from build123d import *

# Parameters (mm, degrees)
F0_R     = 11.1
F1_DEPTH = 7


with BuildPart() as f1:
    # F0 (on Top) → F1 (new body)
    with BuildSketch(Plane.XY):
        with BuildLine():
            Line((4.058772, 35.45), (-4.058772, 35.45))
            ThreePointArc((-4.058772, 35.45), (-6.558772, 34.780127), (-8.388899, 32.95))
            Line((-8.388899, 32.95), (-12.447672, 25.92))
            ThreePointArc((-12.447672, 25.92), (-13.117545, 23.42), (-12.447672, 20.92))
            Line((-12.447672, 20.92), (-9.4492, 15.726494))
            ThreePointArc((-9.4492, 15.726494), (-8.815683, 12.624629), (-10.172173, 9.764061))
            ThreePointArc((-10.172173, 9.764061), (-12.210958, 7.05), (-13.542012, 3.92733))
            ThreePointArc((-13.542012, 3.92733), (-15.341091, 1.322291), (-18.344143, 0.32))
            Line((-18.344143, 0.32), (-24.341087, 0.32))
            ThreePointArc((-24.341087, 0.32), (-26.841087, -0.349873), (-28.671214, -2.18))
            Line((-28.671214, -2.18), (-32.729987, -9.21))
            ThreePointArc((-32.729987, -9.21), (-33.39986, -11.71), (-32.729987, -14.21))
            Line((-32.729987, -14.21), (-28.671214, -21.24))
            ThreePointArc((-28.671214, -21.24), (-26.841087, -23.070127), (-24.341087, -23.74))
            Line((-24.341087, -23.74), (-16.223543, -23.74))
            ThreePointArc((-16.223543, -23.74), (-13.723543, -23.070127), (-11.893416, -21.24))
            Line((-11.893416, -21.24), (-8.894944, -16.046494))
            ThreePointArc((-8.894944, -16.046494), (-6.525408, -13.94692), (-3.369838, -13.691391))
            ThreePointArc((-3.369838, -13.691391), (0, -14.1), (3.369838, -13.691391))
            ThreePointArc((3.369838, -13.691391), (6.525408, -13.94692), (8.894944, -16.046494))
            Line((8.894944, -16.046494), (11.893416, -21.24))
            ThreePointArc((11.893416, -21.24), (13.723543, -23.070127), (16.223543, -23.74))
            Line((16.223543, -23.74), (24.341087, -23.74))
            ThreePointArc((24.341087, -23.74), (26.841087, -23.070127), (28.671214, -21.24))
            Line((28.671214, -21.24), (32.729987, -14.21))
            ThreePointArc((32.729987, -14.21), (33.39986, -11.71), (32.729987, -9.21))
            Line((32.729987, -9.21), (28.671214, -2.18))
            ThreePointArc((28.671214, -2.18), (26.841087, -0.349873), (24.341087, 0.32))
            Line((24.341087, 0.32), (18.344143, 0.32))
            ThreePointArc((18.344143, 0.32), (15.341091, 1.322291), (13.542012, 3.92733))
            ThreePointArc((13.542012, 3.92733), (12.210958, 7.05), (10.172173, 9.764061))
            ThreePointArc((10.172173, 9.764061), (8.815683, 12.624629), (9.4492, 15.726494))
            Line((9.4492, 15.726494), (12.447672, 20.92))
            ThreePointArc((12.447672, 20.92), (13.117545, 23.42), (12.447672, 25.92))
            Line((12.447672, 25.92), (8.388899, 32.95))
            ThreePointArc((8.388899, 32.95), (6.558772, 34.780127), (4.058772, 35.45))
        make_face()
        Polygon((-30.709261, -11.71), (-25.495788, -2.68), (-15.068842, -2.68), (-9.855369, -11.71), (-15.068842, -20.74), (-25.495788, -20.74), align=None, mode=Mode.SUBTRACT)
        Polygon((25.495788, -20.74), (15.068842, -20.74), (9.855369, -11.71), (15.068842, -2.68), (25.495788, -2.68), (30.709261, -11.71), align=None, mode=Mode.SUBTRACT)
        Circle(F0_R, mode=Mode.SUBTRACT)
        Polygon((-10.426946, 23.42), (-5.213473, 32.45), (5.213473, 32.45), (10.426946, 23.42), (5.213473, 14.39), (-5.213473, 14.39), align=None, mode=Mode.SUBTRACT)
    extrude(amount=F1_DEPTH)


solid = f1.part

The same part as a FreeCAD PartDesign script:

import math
import FreeCAD as App
import Part
import Sketcher
from FreeCAD import Vector
Q = App.Units.Quantity


def add_polygon(sketch, points):
    """Adds a closed chain of lines whose ends are joined by coincident constraints."""
    first, n = sketch.GeometryCount, len(points)
    for a, b in zip(points, points[1:] + points[:1]):
        sketch.addGeometry(Part.LineSegment(App.Vector(*a, 0), App.Vector(*b, 0)), False)
    for i in range(n):
        sketch.addConstraint(Sketcher.Constraint("Coincident", first + i, 2, first + (i + 1) % n, 1))

doc = App.newDocument("Part")
body = doc.addObject("PartDesign::Body", "Body")

# Sketch on XY plane
sketch1 = body.newObject("Sketcher::SketchObject", "Sketch")
sketch1.AttachmentSupport = (doc.getObject("XY_Plane"), [""])
sketch1.MapMode = "FlatFace"
sketch1.addGeometry(Part.LineSegment(Vector(4.058772, 35.45, 0), Vector(-4.058772, 35.45, 0)), False)  # 0
sketch1.addGeometry(Part.ArcOfCircle(Part.Circle(Vector(-4.058772, 30.45, 0), Vector(0, 0, 1), 5), math.radians(90.000001), math.radians(150)), False)  # 1
sketch1.addGeometry(Part.LineSegment(Vector(-8.388899, 32.95, 0), Vector(-12.447672, 25.92, 0)), False)  # 2
sketch1.addGeometry(Part.ArcOfCircle(Part.Circle(Vector(-8.117545, 23.42, 0), Vector(0, 0, 1), 5), math.radians(149.999999), math.radians(210.000001)), False)  # 3
sketch1.addGeometry(Part.LineSegment(Vector(-12.447672, 20.92, 0), Vector(-9.4492, 15.726494, 0)), False)  # 4
sketch1.addGeometry(Part.ArcOfCircle(Part.Circle(Vector(-13.779326, 13.226494, 0), Vector(0, 0, 1), 4.999999), math.radians(-43.827272), math.radians(30.000009)), False)  # 5
sketch1.addGeometry(Part.ArcOfCircle(Part.Circle(Vector(0.000005, -0.000004, 0), Vector(0, 0, 1), 14.100006), math.radians(136.172731), math.radians(163.827258)), False)  # 6
sketch1.addGeometry(Part.ArcOfCircle(Part.Circle(Vector(-18.344143, 5.319999, 0), Vector(0, 0, 1), 4.999999), math.radians(-90.000003), math.radians(-16.172716)), False)  # 7
sketch1.addGeometry(Part.LineSegment(Vector(-18.344143, 0.32, 0), Vector(-24.341087, 0.32, 0)), False)  # 8
sketch1.addGeometry(Part.ArcOfCircle(Part.Circle(Vector(-24.341087, -4.68, 0), Vector(0, 0, 1), 5), math.radians(90.000001), math.radians(150)), False)  # 9
sketch1.addGeometry(Part.LineSegment(Vector(-28.671214, -2.18, 0), Vector(-32.729987, -9.21, 0)), False)  # 10
sketch1.addGeometry(Part.ArcOfCircle(Part.Circle(Vector(-28.39986, -11.71, 0), Vector(0, 0, 1), 5), math.radians(149.999999), math.radians(210.000001)), False)  # 11
sketch1.addGeometry(Part.LineSegment(Vector(-32.729987, -14.21, 0), Vector(-28.671214, -21.24, 0)), False)  # 12
sketch1.addGeometry(Part.ArcOfCircle(Part.Circle(Vector(-24.341087, -18.74, 0), Vector(0, 0, 1), 5), math.radians(-150), math.radians(-90.000001)), False)  # 13
sketch1.addGeometry(Part.LineSegment(Vector(-24.341087, -23.74, 0), Vector(-16.223543, -23.74, 0)), False)  # 14
sketch1.addGeometry(Part.ArcOfCircle(Part.Circle(Vector(-16.223543, -18.74, 0), Vector(0, 0, 1), 5), math.radians(-89.999999), math.radians(-30)), False)  # 15
sketch1.addGeometry(Part.LineSegment(Vector(-11.893416, -21.24, 0), Vector(-8.894944, -16.046494, 0)), False)  # 16
sketch1.addGeometry(Part.ArcOfCircle(Part.Circle(Vector(-4.564817, -18.546495, 0), Vector(0, 0, 1), 5.000001), math.radians(76.172727), math.radians(149.999994)), False)  # 17
sketch1.addGeometry(Part.ArcOfCircle(Part.Circle(Vector(0, -0.000005, 0), Vector(0, 0, 1), 14.099995), math.radians(-103.827273), math.radians(-76.172727)), False)  # 18
sketch1.addGeometry(Part.ArcOfCircle(Part.Circle(Vector(4.564817, -18.546495, 0), Vector(0, 0, 1), 5.000001), math.radians(30.000006), math.radians(103.827273)), False)  # 19
sketch1.addGeometry(Part.LineSegment(Vector(8.894944, -16.046494, 0), Vector(11.893416, -21.24, 0)), False)  # 20
sketch1.addGeometry(Part.ArcOfCircle(Part.Circle(Vector(16.223543, -18.74, 0), Vector(0, 0, 1), 5), math.radians(-150), math.radians(-90.000001)), False)  # 21
sketch1.addGeometry(Part.LineSegment(Vector(16.223543, -23.74, 0), Vector(24.341087, -23.74, 0)), False)  # 22
sketch1.addGeometry(Part.ArcOfCircle(Part.Circle(Vector(24.341087, -18.74, 0), Vector(0, 0, 1), 5), math.radians(-89.999999), math.radians(-30)), False)  # 23
sketch1.addGeometry(Part.LineSegment(Vector(28.671214, -21.24, 0), Vector(32.729987, -14.21, 0)), False)  # 24
sketch1.addGeometry(Part.ArcOfCircle(Part.Circle(Vector(28.39986, -11.71, 0), Vector(0, 0, 1), 5), math.radians(-30.000001), math.radians(30.000001)), False)  # 25
sketch1.addGeometry(Part.LineSegment(Vector(32.729987, -9.21, 0), Vector(28.671214, -2.18, 0)), False)  # 26
sketch1.addGeometry(Part.ArcOfCircle(Part.Circle(Vector(24.341087, -4.68, 0), Vector(0, 0, 1), 5), math.radians(30), math.radians(89.999999)), False)  # 27
sketch1.addGeometry(Part.LineSegment(Vector(24.341087, 0.32, 0), Vector(18.344143, 0.32, 0)), False)  # 28
sketch1.addGeometry(Part.ArcOfCircle(Part.Circle(Vector(18.344143, 5.319999, 0), Vector(0, 0, 1), 4.999999), math.radians(-163.827284), math.radians(-89.999997)), False)  # 29
sketch1.addGeometry(Part.ArcOfCircle(Part.Circle(Vector(-0.000005, -0.000004, 0), Vector(0, 0, 1), 14.100006), math.radians(16.172742), math.radians(43.827269)), False)  # 30
sketch1.addGeometry(Part.ArcOfCircle(Part.Circle(Vector(13.779326, 13.226494, 0), Vector(0, 0, 1), 4.999999), math.radians(149.999991), math.radians(223.827272)), False)  # 31
sketch1.addGeometry(Part.LineSegment(Vector(9.4492, 15.726494, 0), Vector(12.447672, 20.92, 0)), False)  # 32
sketch1.addGeometry(Part.ArcOfCircle(Part.Circle(Vector(8.117545, 23.42, 0), Vector(0, 0, 1), 5), math.radians(-30.000001), math.radians(30.000001)), False)  # 33
sketch1.addGeometry(Part.LineSegment(Vector(12.447672, 25.92, 0), Vector(8.388899, 32.95, 0)), False)  # 34
sketch1.addGeometry(Part.ArcOfCircle(Part.Circle(Vector(4.058772, 30.45, 0), Vector(0, 0, 1), 5), math.radians(30), math.radians(89.999999)), False)  # 35
add_polygon(sketch1, [(-25.495788, -20.74), (-30.709261, -11.71), (-25.495788, -2.68), (-15.068842, -2.68), (-9.855369, -11.71), (-15.068842, -20.74)])  # lines 36-41
add_polygon(sketch1, [(30.709261, -11.71), (25.495788, -20.74), (15.068842, -20.74), (9.855369, -11.71), (15.068842, -2.68), (25.495788, -2.68)])  # lines 42-47
sketch1.addGeometry(Part.Circle(Vector(0, 0, 0), Vector(0, 0, 1), 11.1), False)  # 48
add_polygon(sketch1, [(-5.213473, 14.39), (-10.426946, 23.42), (-5.213473, 32.45), (5.213473, 32.45), (10.426946, 23.42), (5.213473, 14.39)])  # lines 49-54
sketch1.addConstraint([
    Sketcher.Constraint("Coincident", 0, 2, 1, 1),
    Sketcher.Constraint("Coincident", 1, 2, 2, 1),
    Sketcher.Constraint("Coincident", 2, 2, 3, 1),
    Sketcher.Constraint("Coincident", 3, 2, 4, 1),
    Sketcher.Constraint("Coincident", 4, 2, 5, 2),
    Sketcher.Constraint("Coincident", 5, 1, 6, 1),
    Sketcher.Constraint("Coincident", 6, 2, 7, 2),
    Sketcher.Constraint("Coincident", 7, 1, 8, 1),
    Sketcher.Constraint("Coincident", 8, 2, 9, 1),
    Sketcher.Constraint("Coincident", 9, 2, 10, 1),
    Sketcher.Constraint("Coincident", 10, 2, 11, 1),
    Sketcher.Constraint("Coincident", 11, 2, 12, 1),
    Sketcher.Constraint("Coincident", 12, 2, 13, 1),
    Sketcher.Constraint("Coincident", 13, 2, 14, 1),
    Sketcher.Constraint("Coincident", 14, 2, 15, 1),
    Sketcher.Constraint("Coincident", 15, 2, 16, 1),
    Sketcher.Constraint("Coincident", 16, 2, 17, 2),
    Sketcher.Constraint("Coincident", 17, 1, 18, 1),
    Sketcher.Constraint("Coincident", 18, 2, 19, 2),
    Sketcher.Constraint("Coincident", 19, 1, 20, 1),
    Sketcher.Constraint("Coincident", 20, 2, 21, 1),
    Sketcher.Constraint("Coincident", 21, 2, 22, 1),
    Sketcher.Constraint("Coincident", 22, 2, 23, 1),
    Sketcher.Constraint("Coincident", 23, 2, 24, 1),
    Sketcher.Constraint("Coincident", 24, 2, 25, 1),
    Sketcher.Constraint("Coincident", 25, 2, 26, 1),
    Sketcher.Constraint("Coincident", 26, 2, 27, 1),
    Sketcher.Constraint("Coincident", 27, 2, 28, 1),
    Sketcher.Constraint("Coincident", 28, 2, 29, 2),
    Sketcher.Constraint("Coincident", 29, 1, 30, 1),
    Sketcher.Constraint("Coincident", 30, 2, 31, 2),
    Sketcher.Constraint("Coincident", 31, 1, 32, 1),
    Sketcher.Constraint("Coincident", 32, 2, 33, 1),
    Sketcher.Constraint("Coincident", 33, 2, 34, 1),
    Sketcher.Constraint("Coincident", 34, 2, 35, 1),
    Sketcher.Constraint("Coincident", 35, 2, 0, 1),
    Sketcher.Constraint("Horizontal", 0),
    Sketcher.Constraint("Horizontal", 8),
    Sketcher.Constraint("Horizontal", 14),
    Sketcher.Constraint("Horizontal", 22),
    Sketcher.Constraint("Horizontal", 28),
    Sketcher.Constraint("Horizontal", 38),
    Sketcher.Constraint("Horizontal", 41),
    Sketcher.Constraint("Horizontal", 43),
    Sketcher.Constraint("Horizontal", 46),
    Sketcher.Constraint("Horizontal", 51),
    Sketcher.Constraint("Horizontal", 54),
    Sketcher.Constraint("Coincident", 6, 3, -1, 1),
    Sketcher.Constraint("Coincident", 18, 3, -1, 1),
    Sketcher.Constraint("Coincident", 30, 3, -1, 1),
    Sketcher.Constraint("Coincident", 48, 3, -1, 1),
    Sketcher.Constraint("Radius", 1, Q("5 mm")),
    Sketcher.Constraint("Radius", 3, Q("5 mm")),
    Sketcher.Constraint("Radius", 5, Q("4.999999 mm")),
    Sketcher.Constraint("Radius", 7, Q("4.999999 mm")),
    Sketcher.Constraint("Radius", 9, Q("5 mm")),
    Sketcher.Constraint("Radius", 11, Q("5 mm")),
    Sketcher.Constraint("Radius", 13, Q("5 mm")),
    Sketcher.Constraint("Radius", 15, Q("5 mm")),
    Sketcher.Constraint("Radius", 17, Q("5.000001 mm")),
    Sketcher.Constraint("Radius", 19, Q("5.000001 mm")),
    Sketcher.Constraint("Radius", 21, Q("5 mm")),
    Sketcher.Constraint("Radius", 23, Q("5 mm")),
    Sketcher.Constraint("Radius", 25, Q("5 mm")),
    Sketcher.Constraint("Radius", 27, Q("5 mm")),
    Sketcher.Constraint("Radius", 29, Q("4.999999 mm")),
    Sketcher.Constraint("Radius", 31, Q("4.999999 mm")),
    Sketcher.Constraint("Radius", 33, Q("5 mm")),
    Sketcher.Constraint("Radius", 35, Q("5 mm")),
    Sketcher.Constraint("Diameter", 48, Q("22.2 mm")),
    Sketcher.Constraint("DistanceY", -1, 1, 1, 3, Q("30.45 mm")),
    Sketcher.Constraint("DistanceY", -1, 1, 3, 3, Q("23.42 mm")),
    Sketcher.Constraint("DistanceY", -1, 1, 7, 3, Q("5.319999 mm")),
    Sketcher.Constraint("DistanceY", 11, 3, -1, 1, Q("11.71 mm")),
    Sketcher.Constraint("DistanceY", 13, 3, -1, 1, Q("18.74 mm")),
    Sketcher.Constraint("DistanceY", 21, 3, -1, 1, Q("18.74 mm")),
    Sketcher.Constraint("DistanceY", 25, 3, -1, 1, Q("11.71 mm")),
    Sketcher.Constraint("DistanceY", 27, 3, -1, 1, Q("4.68 mm")),
    Sketcher.Constraint("DistanceY", -1, 1, 33, 3, Q("23.42 mm")),
    Sketcher.Constraint("DistanceY", -1, 1, 1, 2, Q("32.95 mm")),
    Sketcher.Constraint("DistanceY", -1, 1, 2, 2, Q("25.92 mm")),
    Sketcher.Constraint("DistanceY", -1, 1, 3, 2, Q("20.92 mm")),
    Sketcher.Constraint("DistanceY", 9, 2, -1, 1, Q("2.18 mm")),
    Sketcher.Constraint("DistanceY", 10, 2, -1, 1, Q("9.21 mm")),
    Sketcher.Constraint("DistanceY", 11, 2, -1, 1, Q("14.21 mm")),
    Sketcher.Constraint("DistanceY", 12, 2, -1, 1, Q("21.24 mm")),
    Sketcher.Constraint("DistanceY", 15, 2, -1, 1, Q("21.24 mm")),
    Sketcher.Constraint("DistanceY", 20, 2, -1, 1, Q("21.24 mm")),
    Sketcher.Constraint("DistanceY", 23, 2, -1, 1, Q("21.24 mm")),
    Sketcher.Constraint("DistanceY", 24, 2, -1, 1, Q("14.21 mm")),
    Sketcher.Constraint("DistanceY", 25, 2, -1, 1, Q("9.21 mm")),
    Sketcher.Constraint("DistanceY", 26, 2, -1, 1, Q("2.18 mm")),
    Sketcher.Constraint("DistanceY", -1, 1, 32, 2, Q("20.92 mm")),
    Sketcher.Constraint("DistanceY", -1, 1, 33, 2, Q("25.92 mm")),
    Sketcher.Constraint("DistanceY", -1, 1, 34, 2, Q("32.95 mm")),
    Sketcher.Constraint("DistanceY", 36, 2, -1, 1, Q("11.71 mm")),
    Sketcher.Constraint("DistanceY", 37, 2, -1, 1, Q("2.68 mm")),
    Sketcher.Constraint("DistanceY", 39, 2, -1, 1, Q("11.71 mm")),
    Sketcher.Constraint("DistanceY", 40, 2, -1, 1, Q("20.74 mm")),
    Sketcher.Constraint("DistanceY", 42, 2, -1, 1, Q("20.74 mm")),
    Sketcher.Constraint("DistanceY", 44, 2, -1, 1, Q("11.71 mm")),
    Sketcher.Constraint("DistanceY", 45, 2, -1, 1, Q("2.68 mm")),
    Sketcher.Constraint("DistanceY", 47, 2, -1, 1, Q("11.71 mm")),
    Sketcher.Constraint("DistanceY", -1, 1, 49, 2, Q("23.42 mm")),
    Sketcher.Constraint("DistanceY", -1, 1, 50, 2, Q("32.45 mm")),
    Sketcher.Constraint("DistanceY", -1, 1, 52, 2, Q("23.42 mm")),
    Sketcher.Constraint("DistanceY", -1, 1, 53, 2, Q("14.39 mm")),
    Sketcher.Constraint("Radius", 6, Q("14.100006 mm")),
    Sketcher.Constraint("Radius", 18, Q("14.099995 mm")),
    Sketcher.Constraint("Radius", 30, Q("14.100006 mm")),
    Sketcher.Constraint("DistanceX", 1, 2, -1, 1, Q("8.388899 mm")),
    Sketcher.Constraint("DistanceX", 4, 2, -1, 1, Q("9.4492 mm")),
    Sketcher.Constraint("DistanceX", -1, 1, 31, 1, Q("9.4492 mm")),
    Sketcher.Constraint("DistanceX", -1, 1, 34, 2, Q("8.388899 mm")),
    Sketcher.Constraint("DistanceX", 0, 2, 0, 1, Q("8.117544 mm")),
    Sketcher.Constraint("DistanceX", 8, 2, 8, 1, Q("5.996944 mm")),
    Sketcher.Constraint("DistanceX", 14, 1, 14, 2, Q("8.117544 mm")),
    Sketcher.Constraint("DistanceX", 22, 1, 22, 2, Q("8.117544 mm")),
    Sketcher.Constraint("DistanceX", 28, 2, 28, 1, Q("5.996944 mm")),
    Sketcher.Constraint("DistanceX", 38, 1, 38, 2, Q("10.426946 mm")),
    Sketcher.Constraint("DistanceX", 41, 2, 41, 1, Q("10.426946 mm")),
    Sketcher.Constraint("DistanceX", 43, 2, 43, 1, Q("10.426946 mm")),
    Sketcher.Constraint("DistanceX", 46, 1, 46, 2, Q("10.426946 mm")),
    Sketcher.Constraint("DistanceX", 51, 1, 51, 2, Q("10.426946 mm")),
    Sketcher.Constraint("DistanceX", 54, 2, 54, 1, Q("10.426946 mm")),
    Sketcher.Constraint("DistanceX", 11, 3, -1, 1, Q("28.39986 mm")),
    Sketcher.Constraint("DistanceX", -1, 1, 25, 3, Q("28.39986 mm")),
    Sketcher.Constraint("DistanceY", -1, 1, 5, 1, Q("9.764061 mm")),
    Sketcher.Constraint("DistanceY", -1, 1, 6, 2, Q("3.92733 mm")),
    Sketcher.Constraint("DistanceX", 17, 1, -1, 1, Q("3.369838 mm")),
    Sketcher.Constraint("DistanceX", -1, 1, 18, 2, Q("3.369838 mm")),
    Sketcher.Constraint("DistanceY", -1, 1, 29, 1, Q("3.92733 mm")),
    Sketcher.Constraint("DistanceY", -1, 1, 30, 2, Q("9.764061 mm")),
    Sketcher.Constraint("DistanceX", 36, 2, -1, 1, Q("30.709261 mm")),
    Sketcher.Constraint("DistanceX", 37, 2, -1, 1, Q("25.495788 mm")),
    Sketcher.Constraint("DistanceX", 39, 2, -1, 1, Q("9.855369 mm")),
    Sketcher.Constraint("DistanceX", 41, 2, -1, 1, Q("25.495788 mm")),
    Sketcher.Constraint("DistanceX", -1, 1, 42, 2, Q("25.495788 mm")),
    Sketcher.Constraint("DistanceX", -1, 1, 44, 2, Q("9.855369 mm")),
    Sketcher.Constraint("DistanceX", -1, 1, 46, 2, Q("25.495788 mm")),
    Sketcher.Constraint("DistanceX", -1, 1, 47, 2, Q("30.709261 mm")),
    Sketcher.Constraint("Distance", 2, Q("8.117545 mm")),
    Sketcher.Constraint("Distance", 4, Q("5.996944 mm")),
    Sketcher.Constraint("Distance", 10, Q("8.117545 mm")),
    Sketcher.Constraint("Distance", 12, Q("8.117545 mm")),
    Sketcher.Constraint("Distance", 16, Q("5.996944 mm")),
    Sketcher.Constraint("Distance", 20, Q("5.996944 mm")),
    Sketcher.Constraint("Distance", 24, Q("8.117545 mm")),
    Sketcher.Constraint("Distance", 26, Q("8.117545 mm")),
    Sketcher.Constraint("Distance", 32, Q("5.996944 mm")),
    Sketcher.Constraint("Distance", 34, Q("8.117545 mm")),
    Sketcher.Constraint("Distance", 49, Q("10.426946 mm")),
    Sketcher.Constraint("Distance", 50, Q("10.426946 mm")),
    Sketcher.Constraint("Distance", 52, Q("10.426946 mm")),
    Sketcher.Constraint("DistanceX", 15, 3, -1, 1, Q("16.223543 mm")),
    Sketcher.Constraint("DistanceX", 17, 3, -1, 1, Q("4.564817 mm")),
    Sketcher.Constraint("DistanceX", -1, 1, 19, 3, Q("4.564817 mm")),
    Sketcher.Constraint("DistanceX", -1, 1, 21, 3, Q("16.223543 mm")),
    Sketcher.Constraint("DistanceX", 0, 2, -1, 1, Q("4.058772 mm")),
    Sketcher.Constraint("DistanceX", 7, 1, -1, 1, Q("18.344143 mm")),
    Sketcher.Constraint("DistanceX", 13, 2, -1, 1, Q("24.341087 mm")),
    Sketcher.Constraint("DistanceX", -1, 1, 21, 2, Q("16.223543 mm")),
    Sketcher.Constraint("DistanceX", -1, 1, 27, 2, Q("24.341087 mm")),
    Sketcher.Constraint("DistanceX", 49, 2, -1, 1, Q("10.426946 mm")),
])
pad1 = body.newObject("PartDesign::Pad", "Pad")
pad1.Profile = sketch1
pad1.Length = 7

doc.recompute()
